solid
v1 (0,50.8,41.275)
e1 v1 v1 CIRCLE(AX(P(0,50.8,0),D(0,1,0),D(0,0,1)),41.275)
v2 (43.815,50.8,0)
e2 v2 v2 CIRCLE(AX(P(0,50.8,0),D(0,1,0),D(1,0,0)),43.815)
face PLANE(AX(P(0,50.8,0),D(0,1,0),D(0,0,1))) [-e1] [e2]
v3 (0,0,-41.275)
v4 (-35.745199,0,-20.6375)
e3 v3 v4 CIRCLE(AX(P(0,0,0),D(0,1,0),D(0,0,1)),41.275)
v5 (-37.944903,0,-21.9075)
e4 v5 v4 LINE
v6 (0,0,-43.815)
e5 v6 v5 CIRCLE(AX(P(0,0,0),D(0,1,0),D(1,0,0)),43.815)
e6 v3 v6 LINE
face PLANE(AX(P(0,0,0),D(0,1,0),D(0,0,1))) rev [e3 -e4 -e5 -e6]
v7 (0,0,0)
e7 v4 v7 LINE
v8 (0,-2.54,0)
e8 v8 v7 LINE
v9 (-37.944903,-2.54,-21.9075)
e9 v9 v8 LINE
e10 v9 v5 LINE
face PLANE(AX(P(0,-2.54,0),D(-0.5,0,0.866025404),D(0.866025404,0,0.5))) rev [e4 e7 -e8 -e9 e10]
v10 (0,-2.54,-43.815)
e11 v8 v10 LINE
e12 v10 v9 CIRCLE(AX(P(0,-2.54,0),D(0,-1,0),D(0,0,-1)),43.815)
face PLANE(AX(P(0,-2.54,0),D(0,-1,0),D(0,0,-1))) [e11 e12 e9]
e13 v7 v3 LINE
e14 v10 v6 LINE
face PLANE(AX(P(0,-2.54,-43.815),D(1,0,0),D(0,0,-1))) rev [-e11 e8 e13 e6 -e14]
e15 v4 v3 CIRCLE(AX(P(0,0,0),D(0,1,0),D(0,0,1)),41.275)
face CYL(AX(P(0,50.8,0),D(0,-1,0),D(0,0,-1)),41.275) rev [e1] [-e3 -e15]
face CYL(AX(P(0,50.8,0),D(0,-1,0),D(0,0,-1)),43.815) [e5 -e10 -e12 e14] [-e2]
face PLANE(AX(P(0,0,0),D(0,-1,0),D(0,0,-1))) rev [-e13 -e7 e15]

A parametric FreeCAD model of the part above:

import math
import FreeCAD as App
import Part
import Sketcher

V = App.Vector
Q = App.Units.Quantity

doc = App.newDocument("Part")
body = doc.addObject("PartDesign::Body", "Body")

sketch1 = body.newObject("Sketcher::SketchObject", "Sketch")
sketch1.AttachmentSupport = (doc.getObject("XZ_Plane"), [""])
sketch1.MapMode = "FlatFace"
sketch1.addGeometry(Part.Circle(V(0, 0, 0), V(0, 0, 1), 44), False)
sketch1.addGeometry(Part.Circle(V(0, 0, 0), V(0, 0, 1), 41), False)
sketch1.addConstraint(Sketcher.Constraint("Coincident", 0, 3, -1, 1))
sketch1.addConstraint(Sketcher.Constraint("Coincident", 1, 3, -1, 1))
sketch1.addConstraint(Sketcher.Constraint("Diameter", 0, Q("3.45 in")))
sketch1.addConstraint(Sketcher.Constraint("Diameter", 1, Q("3.25 in")))
pad1 = body.newObject("PartDesign::Pad", "Pad")
pad1.Profile = sketch1
pad1.Length = Q("2 in")
pad1.Reversed = True

sketch2 = body.newObject("Sketcher::SketchObject", "Sketch001")
sketch2.AttachmentSupport = (doc.getObject("XZ_Plane"), [""])
sketch2.MapMode = "FlatFace"
sketch2.AttachmentOffset = App.Placement(V(0, 0, 0.1 * 25.4), App.Rotation())
sketch2.addGeometry(Part.LineSegment(V(0, 0, 0), V(0, -44, 0)), False)
sketch2.addGeometry(Part.ArcOfCircle(Part.Circle(V(0, 0, 0), V(0, 0, 1), 44), math.radians(-90), math.radians(210)), False)
sketch2.addGeometry(Part.LineSegment(V(-38, -22, 0), V(0, 0, 0)), False)
sketch2.addConstraint(Sketcher.Constraint("Coincident", 0, 2, 1, 1))
sketch2.addConstraint(Sketcher.Constraint("Coincident", 1, 2, 2, 1))
sketch2.addConstraint(Sketcher.Constraint("Coincident", 2, 2, 0, 1))
sketch2.addConstraint(Sketcher.Constraint("Vertical", 0))
sketch2.addConstraint(Sketcher.Constraint("Coincident", 1, 3, -1, 1))
sketch2.addConstraint(Sketcher.Constraint("Coincident", 2, 2, -1, 1))
sketch2.addConstraint(Sketcher.Constraint("Angle", 2, Q("30 deg")))
sketch2.addConstraint(Sketcher.Constraint("Radius", 1, Q("1.725 in")))
pad2 = body.newObject("PartDesign::Pad", "Pad001")
pad2.Profile = sketch2
pad2.Length = Q("0.1 in")
pad2.Reversed = True

doc.recompute()
